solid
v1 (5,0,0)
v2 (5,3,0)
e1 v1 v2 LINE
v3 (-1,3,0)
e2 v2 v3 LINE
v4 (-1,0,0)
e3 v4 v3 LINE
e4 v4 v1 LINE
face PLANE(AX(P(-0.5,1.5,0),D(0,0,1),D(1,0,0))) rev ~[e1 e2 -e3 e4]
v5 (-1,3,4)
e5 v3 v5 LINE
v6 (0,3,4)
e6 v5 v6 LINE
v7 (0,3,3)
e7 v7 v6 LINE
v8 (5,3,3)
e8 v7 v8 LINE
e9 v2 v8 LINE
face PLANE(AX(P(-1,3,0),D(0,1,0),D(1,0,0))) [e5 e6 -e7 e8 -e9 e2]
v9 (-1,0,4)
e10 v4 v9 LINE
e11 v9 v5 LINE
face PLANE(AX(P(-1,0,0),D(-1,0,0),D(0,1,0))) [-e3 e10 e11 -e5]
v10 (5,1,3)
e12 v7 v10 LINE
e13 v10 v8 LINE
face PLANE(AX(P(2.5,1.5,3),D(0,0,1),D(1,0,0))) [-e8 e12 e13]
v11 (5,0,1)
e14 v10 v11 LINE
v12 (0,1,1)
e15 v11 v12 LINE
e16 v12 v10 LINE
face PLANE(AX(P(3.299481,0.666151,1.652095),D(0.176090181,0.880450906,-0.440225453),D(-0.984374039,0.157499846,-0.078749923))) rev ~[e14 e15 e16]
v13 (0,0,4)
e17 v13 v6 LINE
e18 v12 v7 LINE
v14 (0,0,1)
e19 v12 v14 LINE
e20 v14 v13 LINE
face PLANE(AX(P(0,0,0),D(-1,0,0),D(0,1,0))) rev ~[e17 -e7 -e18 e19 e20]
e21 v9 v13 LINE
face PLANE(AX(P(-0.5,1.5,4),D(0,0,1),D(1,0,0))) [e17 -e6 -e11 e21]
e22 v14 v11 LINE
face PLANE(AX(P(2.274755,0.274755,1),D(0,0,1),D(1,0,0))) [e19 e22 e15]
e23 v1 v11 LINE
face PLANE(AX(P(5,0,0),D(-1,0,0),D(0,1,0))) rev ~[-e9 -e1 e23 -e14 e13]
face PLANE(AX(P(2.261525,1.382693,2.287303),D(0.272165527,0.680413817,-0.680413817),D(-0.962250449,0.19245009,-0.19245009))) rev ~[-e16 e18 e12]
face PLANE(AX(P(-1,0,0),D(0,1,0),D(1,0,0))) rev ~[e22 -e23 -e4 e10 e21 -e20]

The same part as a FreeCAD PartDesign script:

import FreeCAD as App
import Part
import Sketcher
Q = App.Units.Quantity

doc = App.newDocument("Part")
params = doc.addObject("Spreadsheet::Sheet", "Params")
for row, (alias, value) in enumerate([
    ("sketch1_width", "5 mm"),
    ("sketch1_height", "3 mm"),
    ("pad1_length", "3 mm"),
    ("sketch2_width", "5 mm"),
    ("sketch2_height", "1 mm"),
    ("pocket1_length", "2 mm"),
    ("pocket2_length", "25 mm"),
    ("pocket3_length", "25 mm"),
    ("sketch5_width", "1 mm"),
    ("sketch5_height", "3 mm"),
    ("pad2_length", "4 mm"),
], start=1):
    params.set(f"A{row}", alias)
    params.set(f"B{row}", "=" + value)
    params.setAlias(f"B{row}", alias)

body = doc.addObject("PartDesign::Body", "Body")

# Sketch on XY plane
sketch1 = doc.addObject("Sketcher::SketchObject", "Sketch")
body.addObject(sketch1)
sketch1.AttachmentSupport = (doc.XY_Plane, [""])
sketch1.MapMode = "FlatFace"
sketch1.addGeometry([
    Part.LineSegment(App.Vector(0, 3, 0), App.Vector(0, 0, 0)),
    Part.LineSegment(App.Vector(0, 0, 0), App.Vector(5, 0, 0)),
    Part.LineSegment(App.Vector(5, 0, 0), App.Vector(5, 3, 0)),
    Part.LineSegment(App.Vector(5, 3, 0), App.Vector(0, 3, 0)),
], False)
sketch1.addConstraint([
    Sketcher.Constraint("Coincident", 0, 2, 1, 1),
    Sketcher.Constraint("Coincident", 1, 2, 2, 1),
    Sketcher.Constraint("Coincident", 2, 2, 3, 1),
    Sketcher.Constraint("Coincident", 3, 2, 0, 1),
    Sketcher.Constraint("Vertical", 0),
    Sketcher.Constraint("Horizontal", 1),
    Sketcher.Constraint("Vertical", 2),
    Sketcher.Constraint("Horizontal", 3),
    Sketcher.Constraint("Coincident", 0, 2, -1, 1),
    Sketcher.Constraint("DistanceX", 1, 1, 1, 2, Q("5 mm")),
    Sketcher.Constraint("DistanceY", 0, 2, 0, 1, Q("3 mm")),
])
sketch1.setExpression("Constraints[9]", "Params.sketch1_width")
sketch1.setExpression("Constraints[10]", "Params.sketch1_height")
pad1 = doc.addObject("PartDesign::Pad", "Pad")
body.addObject(pad1)
pad1.Profile = sketch1
pad1.setExpression("Length", "Params.pad1_length")

# Sketch on XY plane
sketch2 = doc.addObject("Sketcher::SketchObject", "Sketch001")
body.addObject(sketch2)
sketch2.AttachmentSupport = (doc.XY_Plane, [""])
sketch2.MapMode = "FlatFace"
sketch2.AttachmentOffset = App.Placement(App.Vector(0, 0, 3), App.Rotation())
sketch2.addGeometry([
    Part.LineSegment(App.Vector(0, 1, 0), App.Vector(0, 0, 0)),
    Part.LineSegment(App.Vector(0, 0, 0), App.Vector(5, 0, 0)),
    Part.LineSegment(App.Vector(5, 0, 0), App.Vector(0, 1, 0)),
], False)
sketch2.addConstraint([
    Sketcher.Constraint("Coincident", 0, 2, 1, 1),
    Sketcher.Constraint("Coincident", 1, 2, 2, 1),
    Sketcher.Constraint("Coincident", 2, 2, 0, 1),
    Sketcher.Constraint("Vertical", 0),
    Sketcher.Constraint("Horizontal", 1),
    Sketcher.Constraint("Coincident", 0, 2, -1, 1),
    Sketcher.Constraint("DistanceX", 1, 1, 1, 2, Q("5 mm")),
    Sketcher.Constraint("DistanceY", 0, 2, 0, 1, Q("1 mm")),
])
sketch2.setExpression("Constraints[6]", "Params.sketch2_width")
sketch2.setExpression("Constraints[7]", "Params.sketch2_height")
pocket1 = doc.addObject("PartDesign::Pocket", "Pocket")
body.addObject(pocket1)
pocket1.Profile = sketch2
pocket1.setExpression("Length", "Params.pocket1_length")

# Sketch on an angled plane
sketch3 = doc.addObject("Sketcher::SketchObject", "Sketch002")
body.addObject(sketch3)
sketch3.Placement = App.Placement(App.Vector(0.077519, 0.387597, -0.193798), App.Rotation(App.Vector(-0.984374039, 0.157499846, -0.078749923), App.Vector(0, 0.447213595, 0.894427191), App.Vector(0.176090181, 0.880450906, -0.440225453), "ZXY"))
sketch3.addGeometry([
    Part.LineSegment(App.Vector(-5.00062, 0.894427, 0), App.Vector(0.07875, 1.341641, 0)),  # 0
    Part.LineSegment(App.Vector(0.07875, 1.341641, 0), App.Vector(-5.00062, 3.130495, 0)),  # 1
    Part.LineSegment(App.Vector(-5.00062, 3.130495, 0), App.Vector(-5.725684, 3.130495, 0)),  # 2
    Part.LineSegment(App.Vector(-5.725684, 3.130495, 0), App.Vector(-5.725684, 0.894427, 0)),  # 3
    Part.LineSegment(App.Vector(-5.725684, 0.894427, 0), App.Vector(-5.00062, 0.894427, 0)),  # 4
], False)
sketch3.addConstraint([
    Sketcher.Constraint("Coincident", 0, 2, 1, 1),
    Sketcher.Constraint("Coincident", 1, 2, 2, 1),
    Sketcher.Constraint("Coincident", 2, 2, 3, 1),
    Sketcher.Constraint("Coincident", 3, 2, 4, 1),
    Sketcher.Constraint("Coincident", 4, 2, 0, 1),
    Sketcher.Constraint("Horizontal", 2),
    Sketcher.Constraint("Vertical", 3),
    Sketcher.Constraint("Horizontal", 4),
    Sketcher.Constraint("Vertical", 1, 2, 4, 2),
    Sketcher.Constraint("Distance", 0, Q("5.09902 mm")),
    Sketcher.Constraint("DistanceX", 2, 2, 2, 1, Q("0.725064 mm")),
    Sketcher.Constraint("DistanceY", 3, 2, 3, 1, Q("2.236068 mm")),
    Sketcher.Constraint("DistanceX", -1, 1, 0, 2, Q("0.07875 mm")),
    Sketcher.Constraint("DistanceY", -1, 1, 0, 2, Q("1.341641 mm")),
    Sketcher.Constraint("DistanceX", 1, 2, -1, 1, Q("5.00062 mm")),
])
pocket2 = doc.addObject("PartDesign::Pocket", "Pocket001")
body.addObject(pocket2)
pocket2.Profile = sketch3
pocket2.setExpression("Length", "Params.pocket2_length")

# Sketch on an angled plane
sketch4 = doc.addObject("Sketcher::SketchObject", "Sketch003")
body.addObject(sketch4)
sketch4.Placement = App.Placement(App.Vector(0, 0, 0), App.Rotation(App.Vector(-0.962250449, 0.19245009, -0.19245009), App.Vector(0, 0.707106781, 0.707106781), App.Vector(0.272165527, 0.680413817, -0.680413817), "ZXY"))
sketch4.addGeometry([
    Part.LineSegment(App.Vector(0, 4.242641, 0), App.Vector(-5.196152, 2.828427, 0)),
    Part.LineSegment(App.Vector(-5.196152, 2.828427, 0), App.Vector(-5.476167, 1.799588, 0)),
    Part.LineSegment(App.Vector(-5.476167, 1.799588, 0), App.Vector(0, 1.414214, 0)),
    Part.LineSegment(App.Vector(0, 1.414214, 0), App.Vector(0, 4.242641, 0)),
], False)
sketch4.addConstraint([
    Sketcher.Constraint("Coincident", 0, 2, 1, 1),
    Sketcher.Constraint("Coincident", 1, 2, 2, 1),
    Sketcher.Constraint("Coincident", 2, 2, 3, 1),
    Sketcher.Constraint("Coincident", 3, 2, 0, 1),
    Sketcher.Constraint("Vertical", 3),
    Sketcher.Constraint("PointOnObject", 2, 2, -2),
    Sketcher.Constraint("Distance", 2, Q("5.48971 mm")),
    Sketcher.Constraint("DistanceY", 3, 1, 3, 2, Q("2.828427 mm")),
    Sketcher.Constraint("DistanceY", -1, 1, 1, 2, Q("1.799588 mm")),
    Sketcher.Constraint("DistanceY", -1, 1, 3, 2, Q("4.242641 mm")),
    Sketcher.Constraint("DistanceY", 1, 2, 0, 2, Q("1.028839 mm")),
    Sketcher.Constraint("Distance", 0, Q("5.385165 mm")),
])
pocket3 = doc.addObject("PartDesign::Pocket", "Pocket002")
body.addObject(pocket3)
pocket3.Profile = sketch4
pocket3.setExpression("Length", "Params.pocket3_length")

# Sketch on XY plane
sketch5 = doc.addObject("Sketcher::SketchObject", "Sketch004")
body.addObject(sketch5)
sketch5.AttachmentSupport = (doc.XY_Plane, [""])
sketch5.MapMode = "FlatFace"
sketch5.addGeometry([
    Part.LineSegment(App.Vector(-1, 3, 0), App.Vector(-1, 0, 0)),
    Part.LineSegment(App.Vector(-1, 0, 0), App.Vector(0, 0, 0)),
    Part.LineSegment(App.Vector(0, 0, 0), App.Vector(0, 3, 0)),
    Part.LineSegment(App.Vector(0, 3, 0), App.Vector(-1, 3, 0)),
], False)
sketch5.addConstraint([
    Sketcher.Constraint("Coincident", 0, 2, 1, 1),
    Sketcher.Constraint("Coincident", 1, 2, 2, 1),
    Sketcher.Constraint("Coincident", 2, 2, 3, 1),
    Sketcher.Constraint("Coincident", 3, 2, 0, 1),
    Sketcher.Constraint("Vertical", 0),
    Sketcher.Constraint("Horizontal", 1),
    Sketcher.Constraint("Vertical", 2),
    Sketcher.Constraint("Horizontal", 3),
    Sketcher.Constraint("Coincident", 1, 2, -1, 1),
    Sketcher.Constraint("DistanceX", 1, 1, 1, 2, Q("1 mm")),
    Sketcher.Constraint("DistanceY", 0, 2, 0, 1, Q("3 mm")),
])
sketch5.setExpression("Constraints[9]", "Params.sketch5_width")
sketch5.setExpression("Constraints[10]", "Params.sketch5_height")
pad2 = doc.addObject("PartDesign::Pad", "Pad001")
body.addObject(pad2)
pad2.Profile = sketch5
pad2.setExpression("Length", "Params.pad2_length")

doc.recompute()
